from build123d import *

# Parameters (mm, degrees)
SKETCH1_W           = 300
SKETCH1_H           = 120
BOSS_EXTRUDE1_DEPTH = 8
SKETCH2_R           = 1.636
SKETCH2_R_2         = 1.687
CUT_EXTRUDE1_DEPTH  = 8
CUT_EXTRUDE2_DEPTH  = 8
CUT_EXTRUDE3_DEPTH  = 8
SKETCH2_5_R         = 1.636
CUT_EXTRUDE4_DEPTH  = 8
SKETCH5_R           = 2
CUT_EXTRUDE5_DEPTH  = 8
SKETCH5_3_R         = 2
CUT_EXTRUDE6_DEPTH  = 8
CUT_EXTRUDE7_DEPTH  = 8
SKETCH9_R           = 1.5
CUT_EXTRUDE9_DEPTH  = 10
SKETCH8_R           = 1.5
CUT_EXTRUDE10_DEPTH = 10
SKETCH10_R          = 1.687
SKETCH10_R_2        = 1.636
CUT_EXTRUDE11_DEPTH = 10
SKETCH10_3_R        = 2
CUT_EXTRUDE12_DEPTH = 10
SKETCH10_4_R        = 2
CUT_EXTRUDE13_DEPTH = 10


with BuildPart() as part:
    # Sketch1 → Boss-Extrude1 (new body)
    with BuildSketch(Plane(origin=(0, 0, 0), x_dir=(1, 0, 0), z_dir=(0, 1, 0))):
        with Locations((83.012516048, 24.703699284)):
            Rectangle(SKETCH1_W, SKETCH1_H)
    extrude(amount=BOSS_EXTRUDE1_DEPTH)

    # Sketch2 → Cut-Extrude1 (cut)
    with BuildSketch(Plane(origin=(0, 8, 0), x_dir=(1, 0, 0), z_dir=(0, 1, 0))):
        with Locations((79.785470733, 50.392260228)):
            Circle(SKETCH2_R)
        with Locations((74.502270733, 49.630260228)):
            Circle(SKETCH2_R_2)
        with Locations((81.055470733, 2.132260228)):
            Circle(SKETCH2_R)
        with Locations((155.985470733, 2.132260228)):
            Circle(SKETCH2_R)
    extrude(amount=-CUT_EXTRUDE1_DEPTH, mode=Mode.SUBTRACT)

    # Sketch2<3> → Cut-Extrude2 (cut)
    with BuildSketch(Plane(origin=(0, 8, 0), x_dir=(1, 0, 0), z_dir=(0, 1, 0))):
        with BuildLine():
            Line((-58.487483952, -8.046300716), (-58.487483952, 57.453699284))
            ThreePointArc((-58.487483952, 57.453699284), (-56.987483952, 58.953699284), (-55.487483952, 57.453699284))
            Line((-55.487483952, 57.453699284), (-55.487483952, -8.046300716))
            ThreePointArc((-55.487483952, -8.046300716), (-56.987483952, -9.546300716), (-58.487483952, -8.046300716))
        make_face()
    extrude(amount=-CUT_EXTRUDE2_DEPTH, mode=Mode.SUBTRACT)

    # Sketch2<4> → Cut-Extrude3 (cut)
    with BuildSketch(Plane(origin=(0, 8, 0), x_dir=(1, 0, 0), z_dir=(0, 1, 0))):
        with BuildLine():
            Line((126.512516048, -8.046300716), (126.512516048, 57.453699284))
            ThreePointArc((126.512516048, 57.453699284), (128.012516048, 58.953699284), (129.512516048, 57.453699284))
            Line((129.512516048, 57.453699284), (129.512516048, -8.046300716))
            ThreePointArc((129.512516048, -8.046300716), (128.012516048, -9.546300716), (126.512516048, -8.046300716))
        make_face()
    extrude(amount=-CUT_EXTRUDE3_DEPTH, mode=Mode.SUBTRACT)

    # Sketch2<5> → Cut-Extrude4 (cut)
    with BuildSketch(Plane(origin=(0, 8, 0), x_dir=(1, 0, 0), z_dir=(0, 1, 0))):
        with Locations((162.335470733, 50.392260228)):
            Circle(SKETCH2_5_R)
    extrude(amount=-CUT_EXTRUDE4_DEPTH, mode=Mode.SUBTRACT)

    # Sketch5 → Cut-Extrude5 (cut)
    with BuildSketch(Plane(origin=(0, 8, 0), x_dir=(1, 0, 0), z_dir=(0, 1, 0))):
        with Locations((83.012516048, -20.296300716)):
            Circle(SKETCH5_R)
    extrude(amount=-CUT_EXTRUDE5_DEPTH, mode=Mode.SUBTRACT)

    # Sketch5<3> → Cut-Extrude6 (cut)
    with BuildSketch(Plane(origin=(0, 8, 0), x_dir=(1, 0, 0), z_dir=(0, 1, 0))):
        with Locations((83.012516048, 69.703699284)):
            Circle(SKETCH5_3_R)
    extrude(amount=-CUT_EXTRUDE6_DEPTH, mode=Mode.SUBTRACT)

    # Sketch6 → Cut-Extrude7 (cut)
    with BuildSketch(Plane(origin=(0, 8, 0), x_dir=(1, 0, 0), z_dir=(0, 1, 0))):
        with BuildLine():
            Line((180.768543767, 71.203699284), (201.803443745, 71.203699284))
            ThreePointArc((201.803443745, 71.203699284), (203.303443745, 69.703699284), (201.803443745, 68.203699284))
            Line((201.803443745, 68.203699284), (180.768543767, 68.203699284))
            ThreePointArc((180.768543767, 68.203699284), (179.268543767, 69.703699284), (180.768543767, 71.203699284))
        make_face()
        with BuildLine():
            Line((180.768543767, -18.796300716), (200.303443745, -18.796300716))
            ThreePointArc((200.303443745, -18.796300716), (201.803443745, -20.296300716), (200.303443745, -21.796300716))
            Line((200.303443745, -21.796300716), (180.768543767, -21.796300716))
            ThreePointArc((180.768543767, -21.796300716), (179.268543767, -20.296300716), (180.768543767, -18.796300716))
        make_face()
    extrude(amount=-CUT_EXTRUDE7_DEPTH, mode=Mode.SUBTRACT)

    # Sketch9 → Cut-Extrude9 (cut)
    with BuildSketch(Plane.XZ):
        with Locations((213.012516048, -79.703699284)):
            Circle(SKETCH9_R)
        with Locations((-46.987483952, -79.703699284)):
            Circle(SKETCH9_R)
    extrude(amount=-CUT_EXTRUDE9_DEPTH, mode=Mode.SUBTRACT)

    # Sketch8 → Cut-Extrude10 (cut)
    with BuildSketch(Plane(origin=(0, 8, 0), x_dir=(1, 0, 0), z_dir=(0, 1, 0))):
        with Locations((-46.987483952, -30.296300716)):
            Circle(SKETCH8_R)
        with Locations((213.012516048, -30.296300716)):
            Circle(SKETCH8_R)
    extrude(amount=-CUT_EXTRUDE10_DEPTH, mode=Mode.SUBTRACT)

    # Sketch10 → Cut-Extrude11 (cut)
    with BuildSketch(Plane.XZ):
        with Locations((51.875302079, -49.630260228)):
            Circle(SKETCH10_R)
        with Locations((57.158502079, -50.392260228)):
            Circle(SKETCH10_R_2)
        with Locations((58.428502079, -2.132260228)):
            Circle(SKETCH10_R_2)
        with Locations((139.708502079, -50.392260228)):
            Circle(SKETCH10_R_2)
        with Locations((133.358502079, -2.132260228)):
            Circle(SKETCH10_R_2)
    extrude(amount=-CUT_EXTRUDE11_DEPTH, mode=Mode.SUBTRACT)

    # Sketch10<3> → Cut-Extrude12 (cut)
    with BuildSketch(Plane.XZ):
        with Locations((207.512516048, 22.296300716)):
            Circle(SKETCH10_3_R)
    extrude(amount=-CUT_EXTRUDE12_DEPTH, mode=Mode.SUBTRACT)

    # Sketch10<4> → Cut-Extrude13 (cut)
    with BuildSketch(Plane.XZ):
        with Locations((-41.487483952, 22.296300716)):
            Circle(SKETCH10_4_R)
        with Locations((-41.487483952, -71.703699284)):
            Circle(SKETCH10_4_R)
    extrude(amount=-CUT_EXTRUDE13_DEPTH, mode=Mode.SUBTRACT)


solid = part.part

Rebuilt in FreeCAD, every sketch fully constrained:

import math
import FreeCAD as App
import Part
import Sketcher

doc = App.newDocument("Part")
body = doc.addObject("PartDesign::Body", "Body")

# Sketch on XZ plane
sketch1 = body.newObject("Sketcher::SketchObject", "Sketch")
sketch1.AttachmentSupport = (doc.getObject("XZ_Plane"), [""])
sketch1.MapMode = "FlatFace"
sketch1.addGeometry(Part.LineSegment(App.Vector(-67, -85, 0), App.Vector(-67, 35, 0)), False)
sketch1.addGeometry(Part.LineSegment(App.Vector(-67, 35, 0), App.Vector(233, 35, 0)), False)
sketch1.addGeometry(Part.LineSegment(App.Vector(233, 35, 0), App.Vector(233, -85, 0)), False)
sketch1.addGeometry(Part.LineSegment(App.Vector(233, -85, 0), App.Vector(-67, -85, 0)), False)
sketch1.addConstraint(Sketcher.Constraint("Coincident", 0, 2, 1, 1))
sketch1.addConstraint(Sketcher.Constraint("Coincident", 1, 2, 2, 1))
sketch1.addConstraint(Sketcher.Constraint("Coincident", 2, 2, 3, 1))
sketch1.addConstraint(Sketcher.Constraint("Coincident", 3, 2, 0, 1))
sketch1.addConstraint(Sketcher.Constraint("Vertical", 0))
sketch1.addConstraint(Sketcher.Constraint("Horizontal", 1))
sketch1.addConstraint(Sketcher.Constraint("Vertical", 2))
sketch1.addConstraint(Sketcher.Constraint("Horizontal", 3))
sketch1.addConstraint(Sketcher.Constraint("DistanceX", 1, 1, 1, 2, 300.0))
sketch1.addConstraint(Sketcher.Constraint("DistanceY", 0, 1, 0, 2, 120.0))
sketch1.addConstraint(Sketcher.Constraint("DistanceY", -1, 1, 0, 2, 35.296301))
sketch1.addConstraint(Sketcher.Constraint("DistanceX", 0, 2, -1, 1, 66.987484))
pad1 = body.newObject("PartDesign::Pad", "Pad")
pad1.Profile = sketch1
pad1.Length = 8
pad1.Reversed = True

# Sketch on XZ plane
sketch2 = body.newObject("Sketcher::SketchObject", "Sketch001")
sketch2.AttachmentSupport = (doc.getObject("XZ_Plane"), [""])
sketch2.MapMode = "FlatFace"
sketch2.AttachmentOffset = App.Placement(App.Vector(0, 0, -8), App.Rotation())
sketch2.addGeometry(Part.Circle(App.Vector(79.8, -50.4, 0), App.Vector(0, 0, 1), 1.6), False)
sketch2.addGeometry(Part.Circle(App.Vector(74.5, -49.6, 0), App.Vector(0, 0, 1), 1.7), False)
sketch2.addGeometry(Part.Circle(App.Vector(81.1, -2.1, 0), App.Vector(0, 0, 1), 1.6), False)
sketch2.addGeometry(Part.Circle(App.Vector(156, -2.1, 0), App.Vector(0, 0, 1), 1.6), False)
sketch2.addConstraint(Sketcher.Constraint("Equal", 0, 2))
sketch2.addConstraint(Sketcher.Constraint("Equal", 2, 3))
sketch2.addConstraint(Sketcher.Constraint("Horizontal", 2, 3, 3, 3))
sketch2.addConstraint(Sketcher.Constraint("Diameter", 0, 3.272))
sketch2.addConstraint(Sketcher.Constraint("Diameter", 1, 3.374))
sketch2.addConstraint(Sketcher.Constraint("DistanceX", 0, 3, 3, 3, 76.2))
sketch2.addConstraint(Sketcher.Constraint("DistanceX", 0, 3, 2, 3, 1.27))
sketch2.addConstraint(Sketcher.Constraint("DistanceY", 0, 3, 2, 3, 48.26))
sketch2.addConstraint(Sketcher.Constraint("DistanceY", 0, 3, 1, 3, 0.762))
sketch2.addConstraint(Sketcher.Constraint("DistanceX", 1, 3, 0, 3, 5.2832))
sketch2.addConstraint(Sketcher.Constraint("DistanceX", -1, 1, 0, 3, 79.785471))
sketch2.addConstraint(Sketcher.Constraint("DistanceY", 0, 3, -1, 1, 50.39226))
pocket1 = body.newObject("PartDesign::Pocket", "Pocket")
pocket1.Profile = sketch2
pocket1.Length = 8
pocket1.Reversed = True

# Sketch on XZ plane
sketch3 = body.newObject("Sketcher::SketchObject", "Sketch002")
sketch3.AttachmentSupport = (doc.getObject("XZ_Plane"), [""])
sketch3.MapMode = "FlatFace"
sketch3.AttachmentOffset = App.Placement(App.Vector(0, 0, -8), App.Rotation())
sketch3.addGeometry(Part.LineSegment(App.Vector(-58.5, -57.5, 0), App.Vector(-58.5, 8, 0)), False)
sketch3.addGeometry(Part.ArcOfCircle(Part.Circle(App.Vector(-57, 8, 0), App.Vector(0, 0, 1), 1.5), math.radians(0), math.radians(180)), False)
sketch3.addGeometry(Part.LineSegment(App.Vector(-55.5, 8, 0), App.Vector(-55.5, -57.5, 0)), False)
sketch3.addGeometry(Part.ArcOfCircle(Part.Circle(App.Vector(-57, -57.5, 0), App.Vector(0, 0, 1), 1.5), math.radians(180), math.radians(360)), False)
sketch3.addConstraint(Sketcher.Constraint("Tangent", 0, 2, 1, 2))
sketch3.addConstraint(Sketcher.Constraint("Tangent", 1, 1, 2, 1))
sketch3.addConstraint(Sketcher.Constraint("Tangent", 2, 2, 3, 2))
sketch3.addConstraint(Sketcher.Constraint("Tangent", 3, 1, 0, 1))
sketch3.addConstraint(Sketcher.Constraint("Vertical", 0))
sketch3.addConstraint(Sketcher.Constraint("Vertical", 2))
sketch3.addConstraint(Sketcher.Constraint("Radius", 1, 1.5))
sketch3.addConstraint(Sketcher.Constraint("DistanceY", 0, 1, 0, 2, 65.5))
sketch3.addConstraint(Sketcher.Constraint("DistanceY", -1, 1, 1, 3, 8.046301))
sketch3.addConstraint(Sketcher.Constraint("DistanceX", 1, 3, -1, 1, 56.987484))
pocket2 = body.newObject("PartDesign::Pocket", "Pocket001")
pocket2.Profile = sketch3
pocket2.Length = 8
pocket2.Reversed = True

# Sketch on XZ plane
sketch4 = body.newObject("Sketcher::SketchObject", "Sketch003")
sketch4.AttachmentSupport = (doc.getObject("XZ_Plane"), [""])
sketch4.MapMode = "FlatFace"
sketch4.AttachmentOffset = App.Placement(App.Vector(0, 0, -8), App.Rotation())
sketch4.addGeometry(Part.LineSegment(App.Vector(126.5, -57.5, 0), App.Vector(126.5, 8, 0)), False)
sketch4.addGeometry(Part.ArcOfCircle(Part.Circle(App.Vector(128, 8, 0), App.Vector(0, 0, 1), 1.5), math.radians(0), math.radians(180)), False)
sketch4.addGeometry(Part.LineSegment(App.Vector(129.5, 8, 0), App.Vector(129.5, -57.5, 0)), False)
sketch4.addGeometry(Part.ArcOfCircle(Part.Circle(App.Vector(128, -57.5, 0), App.Vector(0, 0, 1), 1.5), math.radians(180), math.radians(360)), False)
sketch4.addConstraint(Sketcher.Constraint("Tangent", 0, 2, 1, 2))
sketch4.addConstraint(Sketcher.Constraint("Tangent", 1, 1, 2, 1))
sketch4.addConstraint(Sketcher.Constraint("Tangent", 2, 2, 3, 2))
sketch4.addConstraint(Sketcher.Constraint("Tangent", 3, 1, 0, 1))
sketch4.addConstraint(Sketcher.Constraint("Vertical", 0))
sketch4.addConstraint(Sketcher.Constraint("Vertical", 2))
sketch4.addConstraint(Sketcher.Constraint("Radius", 1, 1.5))
sketch4.addConstraint(Sketcher.Constraint("DistanceY", 0, 1, 0, 2, 65.5))
sketch4.addConstraint(Sketcher.Constraint("DistanceY", -1, 1, 1, 3, 8.046301))
sketch4.addConstraint(Sketcher.Constraint("DistanceX", -1, 1, 1, 3, 128.012516))
pocket3 = body.newObject("PartDesign::Pocket", "Pocket002")
pocket3.Profile = sketch4
pocket3.Length = 8
pocket3.Reversed = True

# Sketch on XZ plane
sketch5 = body.newObject("Sketcher::SketchObject", "Sketch004")
sketch5.AttachmentSupport = (doc.getObject("XZ_Plane"), [""])
sketch5.MapMode = "FlatFace"
sketch5.AttachmentOffset = App.Placement(App.Vector(0, 0, -8), App.Rotation())
sketch5.addGeometry(Part.Circle(App.Vector(162.3, -50.4, 0), App.Vector(0, 0, 1), 1.6), False)
sketch5.addConstraint(Sketcher.Constraint("Diameter", 0, 3.272))
sketch5.addConstraint(Sketcher.Constraint("DistanceX", -1, 1, 0, 3, 162.335471))
sketch5.addConstraint(Sketcher.Constraint("DistanceY", 0, 3, -1, 1, 50.39226))
pocket4 = body.newObject("PartDesign::Pocket", "Pocket003")
pocket4.Profile = sketch5
pocket4.Length = 8
pocket4.Reversed = True

# Sketch on XZ plane
sketch6 = body.newObject("Sketcher::SketchObject", "Sketch005")
sketch6.AttachmentSupport = (doc.getObject("XZ_Plane"), [""])
sketch6.MapMode = "FlatFace"
sketch6.AttachmentOffset = App.Placement(App.Vector(0, 0, -8), App.Rotation())
sketch6.addGeometry(Part.Circle(App.Vector(83, 20.3, 0), App.Vector(0, 0, 1), 2), False)
sketch6.addConstraint(Sketcher.Constraint("Diameter", 0, 4.0))
sketch6.addConstraint(Sketcher.Constraint("DistanceY", -1, 1, 0, 3, 20.296301))
sketch6.addConstraint(Sketcher.Constraint("DistanceX", -1, 1, 0, 3, 83.012516))
pocket5 = body.newObject("PartDesign::Pocket", "Pocket004")
pocket5.Profile = sketch6
pocket5.Length = 8
pocket5.Reversed = True

# Sketch on XZ plane
sketch7 = body.newObject("Sketcher::SketchObject", "Sketch006")
sketch7.AttachmentSupport = (doc.getObject("XZ_Plane"), [""])
sketch7.MapMode = "FlatFace"
sketch7.AttachmentOffset = App.Placement(App.Vector(0, 0, -8), App.Rotation())
sketch7.addGeometry(Part.Circle(App.Vector(83, -69.7, 0), App.Vector(0, 0, 1), 2), False)
sketch7.addConstraint(Sketcher.Constraint("Diameter", 0, 4.0))
sketch7.addConstraint(Sketcher.Constraint("DistanceY", 0, 3, -1, 1, 69.703699))
sketch7.addConstraint(Sketcher.Constraint("DistanceX", -1, 1, 0, 3, 83.012516))
pocket6 = body.newObject("PartDesign::Pocket", "Pocket005")
pocket6.Profile = sketch7
pocket6.Length = 8
pocket6.Reversed = True

# Sketch on XZ plane
sketch8 = body.newObject("Sketcher::SketchObject", "Sketch007")
sketch8.AttachmentSupport = (doc.getObject("XZ_Plane"), [""])
sketch8.MapMode = "FlatFace"
sketch8.AttachmentOffset = App.Placement(App.Vector(0, 0, -8), App.Rotation())
sketch8.addGeometry(Part.LineSegment(App.Vector(201.8, -71.2, 0), App.Vector(180.8, -71.2, 0)), False)
sketch8.addGeometry(Part.ArcOfCircle(Part.Circle(App.Vector(180.8, -69.7, 0), App.Vector(0, 0, 1), 1.5), math.radians(90), math.radians(270)), False)
sketch8.addGeometry(Part.LineSegment(App.Vector(180.8, -68.2, 0), App.Vector(201.8, -68.2, 0)), False)
sketch8.addGeometry(Part.ArcOfCircle(Part.Circle(App.Vector(201.8, -69.7, 0), App.Vector(0, 0, 1), 1.5), math.radians(-90), math.radians(90)), False)
sketch8.addGeometry(Part.LineSegment(App.Vector(200.3, 18.8, 0), App.Vector(180.8, 18.8, 0)), False)
sketch8.addGeometry(Part.ArcOfCircle(Part.Circle(App.Vector(180.8, 20.3, 0), App.Vector(0, 0, 1), 1.5), math.radians(90), math.radians(270)), False)
sketch8.addGeometry(Part.LineSegment(App.Vector(180.8, 21.8, 0), App.Vector(200.3, 21.8, 0)), False)
sketch8.addGeometry(Part.ArcOfCircle(Part.Circle(App.Vector(200.3, 20.3, 0), App.Vector(0, 0, 1), 1.5), math.radians(-90), math.radians(90)), False)
sketch8.addConstraint(Sketcher.Constraint("Tangent", 0, 2, 1, 2))
sketch8.addConstraint(Sketcher.Constraint("Tangent", 1, 1, 2, 1))
sketch8.addConstraint(Sketcher.Constraint("Tangent", 2, 2, 3, 2))
sketch8.addConstraint(Sketcher.Constraint("Tangent", 3, 1, 0, 1))
sketch8.addConstraint(Sketcher.Constraint("Tangent", 4, 2, 5, 2))
sketch8.addConstraint(Sketcher.Constraint("Tangent", 5, 1, 6, 1))
sketch8.addConstraint(Sketcher.Constraint("Tangent", 6, 2, 7, 2))
sketch8.addConstraint(Sketcher.Constraint("Tangent", 7, 1, 4, 1))
sketch8.addConstraint(Sketcher.Constraint("Horizontal", 0))
sketch8.addConstraint(Sketcher.Constraint("Horizontal", 2))
sketch8.addConstraint(Sketcher.Constraint("Horizontal", 4))
sketch8.addConstraint(Sketcher.Constraint("Horizontal", 6))
sketch8.addConstraint(Sketcher.Constraint("Equal", 3, 5))
sketch8.addConstraint(Sketcher.Constraint("Vertical", 1, 3, 5, 3))
sketch8.addConstraint(Sketcher.Constraint("Radius", 1, 1.5))
sketch8.addConstraint(Sketcher.Constraint("DistanceY", 1, 3, 5, 3, 90.0))
sketch8.addConstraint(Sketcher.Constraint("DistanceX", 7, 3, 3, 3, 1.5))
sketch8.addConstraint(Sketcher.Constraint("DistanceX", 0, 2, 0, 1, 21.0349))
sketch8.addConstraint(Sketcher.Constraint("DistanceY", 1, 3, -1, 1, 69.703699))
sketch8.addConstraint(Sketcher.Constraint("DistanceX", -1, 1, 1, 3, 180.768544))
pocket7 = body.newObject("PartDesign::Pocket", "Pocket006")
pocket7.Profile = sketch8
pocket7.Length = 8
pocket7.Reversed = True

# Sketch on XZ plane
sketch9 = body.newObject("Sketcher::SketchObject", "Sketch008")
sketch9.AttachmentSupport = (doc.getObject("XZ_Plane"), [""])
sketch9.MapMode = "FlatFace"
sketch9.addGeometry(Part.Circle(App.Vector(213, -79.7, 0), App.Vector(0, 0, 1), 1.5), False)
sketch9.addGeometry(Part.Circle(App.Vector(-47, -79.7, 0), App.Vector(0, 0, 1), 1.5), False)
sketch9.addConstraint(Sketcher.Constraint("Equal", 0, 1))
sketch9.addConstraint(Sketcher.Constraint("Horizontal", 0, 3, 1, 3))
sketch9.addConstraint(Sketcher.Constraint("Diameter", 0, 3.0))
sketch9.addConstraint(Sketcher.Constraint("DistanceX", 1, 3, 0, 3, 260.0))
sketch9.addConstraint(Sketcher.Constraint("DistanceY", 0, 3, -1, 1, 79.703699))
sketch9.addConstraint(Sketcher.Constraint("DistanceX", -1, 1, 0, 3, 213.012516))
pocket8 = body.newObject("PartDesign::Pocket", "Pocket007")
pocket8.Profile = sketch9
pocket8.Length = 10

# Sketch on XZ plane
sketch10 = body.newObject("Sketcher::SketchObject", "Sketch009")
sketch10.AttachmentSupport = (doc.getObject("XZ_Plane"), [""])
sketch10.MapMode = "FlatFace"
sketch10.AttachmentOffset = App.Placement(App.Vector(0, 0, -8), App.Rotation())
sketch10.addGeometry(Part.Circle(App.Vector(-47, 30.3, 0), App.Vector(0, 0, 1), 1.5), False)
sketch10.addGeometry(Part.Circle(App.Vector(213, 30.3, 0), App.Vector(0, 0, 1), 1.5), False)
sketch10.addConstraint(Sketcher.Constraint("Equal", 0, 1))
sketch10.addConstraint(Sketcher.Constraint("Horizontal", 0, 3, 1, 3))
sketch10.addConstraint(Sketcher.Constraint("Diameter", 0, 3.0))
sketch10.addConstraint(Sketcher.Constraint("DistanceX", 0, 3, 1, 3, 260.0))
sketch10.addConstraint(Sketcher.Constraint("DistanceY", -1, 1, 0, 3, 30.296301))
sketch10.addConstraint(Sketcher.Constraint("DistanceX", 0, 3, -1, 1, 46.987484))
pocket9 = body.newObject("PartDesign::Pocket", "Pocket008")
pocket9.Profile = sketch10
pocket9.Length = 10
pocket9.Reversed = True

# Sketch on XZ plane
sketch11 = body.newObject("Sketcher::SketchObject", "Sketch010")
sketch11.AttachmentSupport = (doc.getObject("XZ_Plane"), [""])
sketch11.MapMode = "FlatFace"
sketch11.addGeometry(Part.Circle(App.Vector(51.9, -49.6, 0), App.Vector(0, 0, 1), 1.7), False)
sketch11.addGeometry(Part.Circle(App.Vector(57.2, -50.4, 0), App.Vector(0, 0, 1), 1.6), False)
sketch11.addGeometry(Part.Circle(App.Vector(58.4, -2.1, 0), App.Vector(0, 0, 1), 1.6), False)
sketch11.addGeometry(Part.Circle(App.Vector(139.7, -50.4, 0), App.Vector(0, 0, 1), 1.6), False)
sketch11.addGeometry(Part.Circle(App.Vector(133.4, -2.1, 0), App.Vector(0, 0, 1), 1.6), False)
sketch11.addConstraint(Sketcher.Constraint("Equal", 1, 2))
sketch11.addConstraint(Sketcher.Constraint("Equal", 2, 3))
sketch11.addConstraint(Sketcher.Constraint("Equal", 3, 4))
sketch11.addConstraint(Sketcher.Constraint("Horizontal", 1, 3, 3, 3))
sketch11.addConstraint(Sketcher.Constraint("Horizontal", 2, 3, 4, 3))
sketch11.addConstraint(Sketcher.Constraint("Diameter", 0, 3.374))
sketch11.addConstraint(Sketcher.Constraint("Diameter", 1, 3.272))
sketch11.addConstraint(Sketcher.Constraint("DistanceX", 1, 3, 4, 3, 76.2))
sketch11.addConstraint(Sketcher.Constraint("DistanceX", 1, 3, 2, 3, 1.27))
sketch11.addConstraint(Sketcher.Constraint("DistanceY", 1, 3, 2, 3, 48.26))
sketch11.addConstraint(Sketcher.Constraint("DistanceX", 1, 3, 3, 3, 82.55))
sketch11.addConstraint(Sketcher.Constraint("DistanceY", 1, 3, 0, 3, 0.762))
sketch11.addConstraint(Sketcher.Constraint("DistanceX", 0, 3, 1, 3, 5.2832))
sketch11.addConstraint(Sketcher.Constraint("DistanceY", 0, 3, -1, 1, 49.63026))
sketch11.addConstraint(Sketcher.Constraint("DistanceX", -1, 1, 0, 3, 51.875302))
pocket10 = body.newObject("PartDesign::Pocket", "Pocket009")
pocket10.Profile = sketch11
pocket10.Length = 10

# Sketch on XZ plane
sketch12 = body.newObject("Sketcher::SketchObject", "Sketch011")
sketch12.AttachmentSupport = (doc.getObject("XZ_Plane"), [""])
sketch12.MapMode = "FlatFace"
sketch12.addGeometry(Part.Circle(App.Vector(207.5, 22.3, 0), App.Vector(0, 0, 1), 2), False)
sketch12.addConstraint(Sketcher.Constraint("Diameter", 0, 4.0))
sketch12.addConstraint(Sketcher.Constraint("DistanceY", -1, 1, 0, 3, 22.296301))
sketch12.addConstraint(Sketcher.Constraint("DistanceX", -1, 1, 0, 3, 207.512516))
pocket11 = body.newObject("PartDesign::Pocket", "Pocket010")
pocket11.Profile = sketch12
pocket11.Length = 10

# Sketch on XZ plane
sketch13 = body.newObject("Sketcher::SketchObject", "Sketch012")
sketch13.AttachmentSupport = (doc.getObject("XZ_Plane"), [""])
sketch13.MapMode = "FlatFace"
sketch13.addGeometry(Part.Circle(App.Vector(-41.5, 22.3, 0), App.Vector(0, 0, 1), 2), False)
sketch13.addGeometry(Part.Circle(App.Vector(-41.5, -71.7, 0), App.Vector(0, 0, 1), 2), False)
sketch13.addConstraint(Sketcher.Constraint("Equal", 0, 1))
sketch13.addConstraint(Sketcher.Constraint("Vertical", 0, 3, 1, 3))
sketch13.addConstraint(Sketcher.Constraint("Diameter", 0, 4.0))
sketch13.addConstraint(Sketcher.Constraint("DistanceY", 1, 3, 0, 3, 94.0))
sketch13.addConstraint(Sketcher.Constraint("DistanceY", -1, 1, 0, 3, 22.296301))
sketch13.addConstraint(Sketcher.Constraint("DistanceX", 0, 3, -1, 1, 41.487484))
pocket12 = body.newObject("PartDesign::Pocket", "Pocket011")
pocket12.Profile = sketch13
pocket12.Length = 10

doc.recompute()
